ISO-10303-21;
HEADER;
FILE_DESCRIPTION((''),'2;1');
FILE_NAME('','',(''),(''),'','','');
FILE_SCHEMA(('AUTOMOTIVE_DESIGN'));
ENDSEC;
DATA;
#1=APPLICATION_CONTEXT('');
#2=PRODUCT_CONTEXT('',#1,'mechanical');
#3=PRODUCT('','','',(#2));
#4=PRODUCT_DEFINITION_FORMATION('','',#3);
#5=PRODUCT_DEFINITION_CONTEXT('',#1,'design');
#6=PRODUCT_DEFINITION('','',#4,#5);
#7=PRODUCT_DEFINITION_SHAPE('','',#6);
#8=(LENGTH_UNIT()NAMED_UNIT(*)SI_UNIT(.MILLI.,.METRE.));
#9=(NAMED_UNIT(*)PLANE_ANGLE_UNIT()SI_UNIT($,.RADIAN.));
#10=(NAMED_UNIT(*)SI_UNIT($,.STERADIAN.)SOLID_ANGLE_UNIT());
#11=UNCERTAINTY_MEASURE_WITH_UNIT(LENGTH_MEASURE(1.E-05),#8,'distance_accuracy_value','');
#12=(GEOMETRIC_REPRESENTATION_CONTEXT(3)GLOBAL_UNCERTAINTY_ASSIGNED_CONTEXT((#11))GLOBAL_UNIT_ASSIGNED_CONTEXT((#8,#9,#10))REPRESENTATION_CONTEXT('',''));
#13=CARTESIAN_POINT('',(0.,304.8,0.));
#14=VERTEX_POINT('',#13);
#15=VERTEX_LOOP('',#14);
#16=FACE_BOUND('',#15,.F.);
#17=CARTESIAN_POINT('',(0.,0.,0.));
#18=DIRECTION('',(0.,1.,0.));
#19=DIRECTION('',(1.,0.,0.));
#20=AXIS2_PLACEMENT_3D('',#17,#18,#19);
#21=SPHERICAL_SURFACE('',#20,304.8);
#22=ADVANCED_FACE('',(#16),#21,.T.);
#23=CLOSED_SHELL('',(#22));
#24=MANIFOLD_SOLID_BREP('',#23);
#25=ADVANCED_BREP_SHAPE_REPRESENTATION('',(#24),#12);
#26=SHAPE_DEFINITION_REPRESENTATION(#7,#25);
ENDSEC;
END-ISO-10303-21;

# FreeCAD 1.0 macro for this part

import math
import FreeCAD as App
import Part
import Sketcher
Q = App.Units.Quantity

doc = App.newDocument("Part")
body = doc.addObject("PartDesign::Body", "Body")

# Sketch on XY plane
sketch1 = body.newObject("Sketcher::SketchObject", "Sketch")
sketch1.AttachmentSupport = (doc.getObject("XY_Plane"), [""])
sketch1.MapMode = "FlatFace"
sketch1.addGeometry(Part.LineSegment(App.Vector(0, 305, 0), App.Vector(0, -305, 0)), False)
sketch1.addGeometry(Part.ArcOfCircle(Part.Circle(App.Vector(0, 0, 0), App.Vector(0, 0, 1), 305), math.radians(-90), math.radians(90)), False)
sketch1.addConstraint(Sketcher.Constraint("Coincident", 0, 1, 1, 2))
sketch1.addConstraint(Sketcher.Constraint("Coincident", 1, 1, 0, 2))
sketch1.addConstraint(Sketcher.Constraint("Vertical", 0))
sketch1.addConstraint(Sketcher.Constraint("Coincident", 1, 3, -1, 1))
sketch1.addConstraint(Sketcher.Constraint("PointOnObject", 0, 1, -2))
sketch1.addConstraint(Sketcher.Constraint("Radius", 1, Q("12 in")))
revolution = body.newObject("PartDesign::Revolution", "Revolution")
revolution.Profile = sketch1
revolution.ReferenceAxis = (sketch1, ["V_Axis"])
revolution.Angle = 360

doc.recompute()
